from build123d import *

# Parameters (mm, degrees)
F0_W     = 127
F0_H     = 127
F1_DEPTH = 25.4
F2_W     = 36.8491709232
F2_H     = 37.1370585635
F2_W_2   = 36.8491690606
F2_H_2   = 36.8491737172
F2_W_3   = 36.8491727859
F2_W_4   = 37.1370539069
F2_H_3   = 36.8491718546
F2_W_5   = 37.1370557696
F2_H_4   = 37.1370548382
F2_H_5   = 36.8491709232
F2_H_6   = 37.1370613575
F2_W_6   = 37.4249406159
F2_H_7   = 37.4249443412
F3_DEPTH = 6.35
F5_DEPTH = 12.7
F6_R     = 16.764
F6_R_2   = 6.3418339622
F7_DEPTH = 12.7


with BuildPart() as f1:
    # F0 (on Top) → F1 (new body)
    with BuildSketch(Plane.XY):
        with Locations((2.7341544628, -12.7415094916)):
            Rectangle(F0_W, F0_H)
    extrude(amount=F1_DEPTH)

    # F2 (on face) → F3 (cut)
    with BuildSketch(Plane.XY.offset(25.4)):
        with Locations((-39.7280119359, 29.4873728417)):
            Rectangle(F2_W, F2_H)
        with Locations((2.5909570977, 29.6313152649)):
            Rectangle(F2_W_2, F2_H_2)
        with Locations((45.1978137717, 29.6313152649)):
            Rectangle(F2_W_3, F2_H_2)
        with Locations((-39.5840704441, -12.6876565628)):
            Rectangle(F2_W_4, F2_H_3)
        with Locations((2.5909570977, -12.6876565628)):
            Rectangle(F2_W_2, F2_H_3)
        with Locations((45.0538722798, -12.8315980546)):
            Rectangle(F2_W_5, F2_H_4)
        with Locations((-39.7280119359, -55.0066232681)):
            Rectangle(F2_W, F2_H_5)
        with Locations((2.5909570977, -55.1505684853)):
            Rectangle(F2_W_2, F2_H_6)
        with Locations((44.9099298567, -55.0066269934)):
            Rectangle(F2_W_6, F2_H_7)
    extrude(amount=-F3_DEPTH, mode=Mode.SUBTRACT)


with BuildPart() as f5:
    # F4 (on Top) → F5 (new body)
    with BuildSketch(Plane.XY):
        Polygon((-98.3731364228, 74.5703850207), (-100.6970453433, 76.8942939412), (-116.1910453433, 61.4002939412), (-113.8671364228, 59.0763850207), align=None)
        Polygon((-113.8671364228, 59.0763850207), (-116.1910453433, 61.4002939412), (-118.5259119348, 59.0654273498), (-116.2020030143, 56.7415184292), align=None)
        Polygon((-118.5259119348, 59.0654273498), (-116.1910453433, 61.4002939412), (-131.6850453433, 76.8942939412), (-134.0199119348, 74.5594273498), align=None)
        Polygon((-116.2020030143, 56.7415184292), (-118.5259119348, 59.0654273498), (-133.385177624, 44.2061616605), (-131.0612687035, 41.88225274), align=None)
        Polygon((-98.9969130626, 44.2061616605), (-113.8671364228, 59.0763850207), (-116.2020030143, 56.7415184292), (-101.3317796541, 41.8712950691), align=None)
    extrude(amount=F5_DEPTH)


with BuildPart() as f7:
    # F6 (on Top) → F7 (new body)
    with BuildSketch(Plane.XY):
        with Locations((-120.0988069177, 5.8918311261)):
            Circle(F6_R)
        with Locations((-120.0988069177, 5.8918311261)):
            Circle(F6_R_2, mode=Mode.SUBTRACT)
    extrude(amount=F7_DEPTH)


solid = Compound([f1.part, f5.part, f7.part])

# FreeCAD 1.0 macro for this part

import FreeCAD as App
import Part
import Sketcher
Q = App.Units.Quantity

doc = App.newDocument("Part")
body = doc.addObject("PartDesign::Body", "Body")

# Sketch on XY plane
sketch1 = body.newObject("Sketcher::SketchObject", "Sketch")
sketch1.AttachmentSupport = (doc.getObject("XY_Plane"), [""])
sketch1.MapMode = "FlatFace"
sketch1.addGeometry([
    Part.LineSegment(App.Vector(-60.765846, 50.758491, 0), App.Vector(-60.765846, -76.241509, 0)),
    Part.LineSegment(App.Vector(-60.765846, -76.241509, 0), App.Vector(66.234154, -76.241509, 0)),
    Part.LineSegment(App.Vector(66.234154, -76.241509, 0), App.Vector(66.234154, 50.758491, 0)),
    Part.LineSegment(App.Vector(66.234154, 50.758491, 0), App.Vector(-60.765846, 50.758491, 0)),
], False)
sketch1.addConstraint([
    Sketcher.Constraint("Coincident", 0, 2, 1, 1),
    Sketcher.Constraint("Coincident", 1, 2, 2, 1),
    Sketcher.Constraint("Coincident", 2, 2, 3, 1),
    Sketcher.Constraint("Coincident", 3, 2, 0, 1),
    Sketcher.Constraint("Vertical", 0),
    Sketcher.Constraint("Horizontal", 1),
    Sketcher.Constraint("Vertical", 2),
    Sketcher.Constraint("Horizontal", 3),
    Sketcher.Constraint("Equal", 3, 0),
    Sketcher.Constraint("DistanceX", 1, 1, 1, 2, Q("5 in")),
    Sketcher.Constraint("DistanceY", 0, 2, -1, 1, Q("76.241509 mm")),
    Sketcher.Constraint("DistanceX", 0, 2, -1, 1, Q("60.765846 mm")),
])
pad1 = body.newObject("PartDesign::Pad", "Pad")
pad1.Profile = sketch1
pad1.Length = Q("1 in")

# Sketch on XY plane
sketch2 = body.newObject("Sketcher::SketchObject", "Sketch001")
sketch2.AttachmentSupport = (doc.getObject("XY_Plane"), [""])
sketch2.MapMode = "FlatFace"
sketch2.AttachmentOffset = App.Placement(App.Vector(0, 0, 1 * 25.4), App.Rotation())
sketch2.addGeometry([
    Part.LineSegment(App.Vector(-58.152597, 48.055902, 0), App.Vector(-58.152597, 10.918844, 0)),  # 0
    Part.LineSegment(App.Vector(-58.152597, 10.918844, 0), App.Vector(-21.303426, 10.918844, 0)),  # 1
    Part.LineSegment(App.Vector(-21.303426, 10.918844, 0), App.Vector(-21.303426, 48.055902, 0)),  # 2
    Part.LineSegment(App.Vector(-21.303426, 48.055902, 0), App.Vector(-58.152597, 48.055902, 0)),  # 3
    Part.LineSegment(App.Vector(-15.833627, 48.055902, 0), App.Vector(-15.833627, 11.206728, 0)),  # 4
    Part.LineSegment(App.Vector(-15.833627, 11.206728, 0), App.Vector(21.015542, 11.206728, 0)),  # 5
    Part.LineSegment(App.Vector(21.015542, 11.206728, 0), App.Vector(21.015542, 48.055902, 0)),  # 6
    Part.LineSegment(App.Vector(21.015542, 48.055902, 0), App.Vector(-15.833627, 48.055902, 0)),  # 7
    Part.LineSegment(App.Vector(26.773227, 48.055902, 0), App.Vector(26.773227, 11.206728, 0)),  # 8
    Part.LineSegment(App.Vector(26.773227, 11.206728, 0), App.Vector(63.6224, 11.206728, 0)),  # 9
    Part.LineSegment(App.Vector(63.6224, 11.206728, 0), App.Vector(63.6224, 48.055902, 0)),  # 10
    Part.LineSegment(App.Vector(63.6224, 48.055902, 0), App.Vector(26.773227, 48.055902, 0)),  # 11
    Part.LineSegment(App.Vector(-58.152597, 5.736929, 0), App.Vector(-58.152597, -31.112242, 0)),  # 12
    Part.LineSegment(App.Vector(-58.152597, -31.112242, 0), App.Vector(-21.015543, -31.112242, 0)),  # 13
    Part.LineSegment(App.Vector(-21.015543, -31.112242, 0), App.Vector(-21.015543, 5.736929, 0)),  # 14
    Part.LineSegment(App.Vector(-21.015543, 5.736929, 0), App.Vector(-58.152597, 5.736929, 0)),  # 15
    Part.LineSegment(App.Vector(-15.833627, 5.736929, 0), App.Vector(-15.833627, -31.112242, 0)),  # 16
    Part.LineSegment(App.Vector(-15.833627, -31.112242, 0), App.Vector(21.015542, -31.112242, 0)),  # 17
    Part.LineSegment(App.Vector(21.015542, -31.112242, 0), App.Vector(21.015542, 5.736929, 0)),  # 18
    Part.LineSegment(App.Vector(21.015542, 5.736929, 0), App.Vector(-15.833627, 5.736929, 0)),  # 19
    Part.LineSegment(App.Vector(26.485344, 5.736929, 0), App.Vector(26.485344, -31.400125, 0)),  # 20
    Part.LineSegment(App.Vector(26.485344, -31.400125, 0), App.Vector(63.6224, -31.400125, 0)),  # 21
    Part.LineSegment(App.Vector(63.6224, -31.400125, 0), App.Vector(63.6224, 5.736929, 0)),  # 22
    Part.LineSegment(App.Vector(63.6224, 5.736929, 0), App.Vector(26.485344, 5.736929, 0)),  # 23
    Part.LineSegment(App.Vector(-58.152597, -36.582038, 0), App.Vector(-58.152597, -73.431209, 0)),  # 24
    Part.LineSegment(App.Vector(-58.152597, -73.431209, 0), App.Vector(-21.303426, -73.431209, 0)),  # 25
    Part.LineSegment(App.Vector(-21.303426, -73.431209, 0), App.Vector(-21.303426, -36.582038, 0)),  # 26
    Part.LineSegment(App.Vector(-21.303426, -36.582038, 0), App.Vector(-58.152597, -36.582038, 0)),  # 27
    Part.LineSegment(App.Vector(-15.833627, -36.582038, 0), App.Vector(-15.833627, -73.719099, 0)),  # 28
    Part.LineSegment(App.Vector(-15.833627, -73.719099, 0), App.Vector(21.015542, -73.719099, 0)),  # 29
    Part.LineSegment(App.Vector(21.015542, -73.719099, 0), App.Vector(21.015542, -36.582038, 0)),  # 30
    Part.LineSegment(App.Vector(21.015542, -36.582038, 0), App.Vector(-15.833627, -36.582038, 0)),  # 31
    Part.LineSegment(App.Vector(26.19746, -36.294155, 0), App.Vector(26.19746, -73.719099, 0)),  # 32
    Part.LineSegment(App.Vector(26.19746, -73.719099, 0), App.Vector(63.6224, -73.719099, 0)),  # 33
    Part.LineSegment(App.Vector(63.6224, -73.719099, 0), App.Vector(63.6224, -36.294155, 0)),  # 34
    Part.LineSegment(App.Vector(63.6224, -36.294155, 0), App.Vector(26.19746, -36.294155, 0)),  # 35
], False)
sketch2.addConstraint([
    Sketcher.Constraint("Coincident", 0, 2, 1, 1),
    Sketcher.Constraint("Coincident", 1, 2, 2, 1),
    Sketcher.Constraint("Coincident", 2, 2, 3, 1),
    Sketcher.Constraint("Coincident", 3, 2, 0, 1),
    Sketcher.Constraint("Coincident", 4, 2, 5, 1),
    Sketcher.Constraint("Coincident", 5, 2, 6, 1),
    Sketcher.Constraint("Coincident", 6, 2, 7, 1),
    Sketcher.Constraint("Coincident", 7, 2, 4, 1),
    Sketcher.Constraint("Coincident", 8, 2, 9, 1),
    Sketcher.Constraint("Coincident", 9, 2, 10, 1),
    Sketcher.Constraint("Coincident", 10, 2, 11, 1),
    Sketcher.Constraint("Coincident", 11, 2, 8, 1),
    Sketcher.Constraint("Coincident", 12, 2, 13, 1),
    Sketcher.Constraint("Coincident", 13, 2, 14, 1),
    Sketcher.Constraint("Coincident", 14, 2, 15, 1),
    Sketcher.Constraint("Coincident", 15, 2, 12, 1),
    Sketcher.Constraint("Coincident", 16, 2, 17, 1),
    Sketcher.Constraint("Coincident", 17, 2, 18, 1),
    Sketcher.Constraint("Coincident", 18, 2, 19, 1),
    Sketcher.Constraint("Coincident", 19, 2, 16, 1),
    Sketcher.Constraint("Coincident", 20, 2, 21, 1),
    Sketcher.Constraint("Coincident", 21, 2, 22, 1),
    Sketcher.Constraint("Coincident", 22, 2, 23, 1),
    Sketcher.Constraint("Coincident", 23, 2, 20, 1),
    Sketcher.Constraint("Coincident", 24, 2, 25, 1),
    Sketcher.Constraint("Coincident", 25, 2, 26, 1),
    Sketcher.Constraint("Coincident", 26, 2, 27, 1),
    Sketcher.Constraint("Coincident", 27, 2, 24, 1),
    Sketcher.Constraint("Coincident", 28, 2, 29, 1),
    Sketcher.Constraint("Coincident", 29, 2, 30, 1),
    Sketcher.Constraint("Coincident", 30, 2, 31, 1),
    Sketcher.Constraint("Coincident", 31, 2, 28, 1),
    Sketcher.Constraint("Coincident", 32, 2, 33, 1),
    Sketcher.Constraint("Coincident", 33, 2, 34, 1),
    Sketcher.Constraint("Coincident", 34, 2, 35, 1),
    Sketcher.Constraint("Coincident", 35, 2, 32, 1),
    Sketcher.Constraint("Vertical", 0),
    Sketcher.Constraint("Horizontal", 1),
    Sketcher.Constraint("Vertical", 2),
    Sketcher.Constraint("Horizontal", 3),
    Sketcher.Constraint("Vertical", 4),
    Sketcher.Constraint("Horizontal", 5),
    Sketcher.Constraint("Vertical", 6),
    Sketcher.Constraint("Horizontal", 7),
    Sketcher.Constraint("Vertical", 8),
    Sketcher.Constraint("Horizontal", 9),
    Sketcher.Constraint("Vertical", 10),
    Sketcher.Constraint("Horizontal", 11),
    Sketcher.Constraint("Vertical", 12),
    Sketcher.Constraint("Horizontal", 13),
    Sketcher.Constraint("Vertical", 14),
    Sketcher.Constraint("Horizontal", 15),
    Sketcher.Constraint("Vertical", 16),
    Sketcher.Constraint("Horizontal", 17),
    Sketcher.Constraint("Vertical", 18),
    Sketcher.Constraint("Horizontal", 19),
    Sketcher.Constraint("Vertical", 20),
    Sketcher.Constraint("Horizontal", 21),
    Sketcher.Constraint("Vertical", 22),
    Sketcher.Constraint("Horizontal", 23),
    Sketcher.Constraint("Vertical", 24),
    Sketcher.Constraint("Horizontal", 25),
    Sketcher.Constraint("Vertical", 26),
    Sketcher.Constraint("Horizontal", 27),
    Sketcher.Constraint("Vertical", 28),
    Sketcher.Constraint("Horizontal", 29),
    Sketcher.Constraint("Vertical", 30),
    Sketcher.Constraint("Horizontal", 31),
    Sketcher.Constraint("Vertical", 32),
    Sketcher.Constraint("Horizontal", 33),
    Sketcher.Constraint("Vertical", 34),
    Sketcher.Constraint("Horizontal", 35),
    Sketcher.Constraint("Symmetric", 13, 2, 17, 2, -2),
    Sketcher.Constraint("Horizontal", 3, 2, 6, 2),
    Sketcher.Constraint("Horizontal", 5, 2, 8, 2),
    Sketcher.Constraint("Horizontal", 7, 2, 10, 2),
    Sketcher.Constraint("Horizontal", 15, 2, 18, 2),
    Sketcher.Constraint("Horizontal", 19, 2, 22, 2),
    Sketcher.Constraint("Horizontal", 27, 2, 30, 2),
    Sketcher.Constraint("Horizontal", 29, 2, 32, 2),
    Sketcher.Constraint("Vertical", 3, 2, 12, 2),
    Sketcher.Constraint("Vertical", 7, 2, 16, 2),
    Sketcher.Constraint("Vertical", 6, 2, 17, 2),
    Sketcher.Constraint("Vertical", 10, 2, 21, 2),
    Sketcher.Constraint("Vertical", 15, 2, 24, 2),
    Sketcher.Constraint("Vertical", 2, 2, 25, 2),
    Sketcher.Constraint("Vertical", 19, 2, 28, 2),
    Sketcher.Constraint("Vertical", 18, 2, 29, 2),
    Sketcher.Constraint("Vertical", 22, 2, 33, 2),
    Sketcher.Constraint("Equal", 3, 5),
    Sketcher.Constraint("Equal", 3, 9),
    Sketcher.Constraint("Equal", 15, 21),
    Sketcher.Constraint("Equal", 11, 4),
    Sketcher.Constraint("Equal", 10, 12),
    Sketcher.Constraint("Equal", 23, 20),
    Sketcher.Constraint("Equal", 18, 24),
    Sketcher.Constraint("DistanceX", 1, 1, 1, 2, Q("36.849171 mm")),
    Sketcher.Constraint("DistanceX", 33, 1, 33, 2, Q("37.424941 mm")),
    Sketcher.Constraint("DistanceY", 0, 2, 0, 1, Q("37.137059 mm")),
    Sketcher.Constraint("DistanceY", 28, 2, 28, 1, Q("37.137061 mm")),
    Sketcher.Constraint("DistanceX", -1, 1, 9, 2, Q("63.6224 mm")),
    Sketcher.Constraint("DistanceY", 28, 2, -1, 1, Q("73.719099 mm")),
    Sketcher.Constraint("DistanceX", 1, 2, 4, 2, Q("5.469799 mm")),
    Sketcher.Constraint("DistanceY", 14, 2, 4, 2, Q("5.469799 mm")),
    Sketcher.Constraint("DistanceX", 13, 1, 13, 2, Q("37.137054 mm")),
    Sketcher.Constraint("DistanceY", 32, 2, 32, 1, Q("37.424944 mm")),
    Sketcher.Constraint("DistanceY", -1, 1, 4, 2, Q("11.206728 mm")),
])
pocket1 = body.newObject("PartDesign::Pocket", "Pocket")
pocket1.Profile = sketch2
pocket1.Length = Q("0.25 in")
body2 = doc.addObject("PartDesign::Body", "Body001")

# Sketch on XY plane
sketch3 = body2.newObject("Sketcher::SketchObject", "Sketch002")
sketch3.AttachmentSupport = (doc.getObject("XY_Plane001"), [""])
sketch3.MapMode = "FlatFace"
sketch3.addGeometry([
    Part.LineSegment(App.Vector(-98.373136, 74.570385, 0), App.Vector(-100.697045, 76.894294, 0)),  # 0
    Part.LineSegment(App.Vector(-100.697045, 76.894294, 0), App.Vector(-116.191045, 61.400294, 0)),  # 1
    Part.LineSegment(App.Vector(-116.191045, 61.400294, 0), App.Vector(-131.685045, 76.894294, 0)),  # 2
    Part.LineSegment(App.Vector(-131.685045, 76.894294, 0), App.Vector(-134.019912, 74.559427, 0)),  # 3
    Part.LineSegment(App.Vector(-134.019912, 74.559427, 0), App.Vector(-118.525912, 59.065427, 0)),  # 4
    Part.LineSegment(App.Vector(-118.525912, 59.065427, 0), App.Vector(-133.385178, 44.206162, 0)),  # 5
    Part.LineSegment(App.Vector(-133.385178, 44.206162, 0), App.Vector(-131.061269, 41.882253, 0)),  # 6
    Part.LineSegment(App.Vector(-131.061269, 41.882253, 0), App.Vector(-116.202003, 56.741518, 0)),  # 7
    Part.LineSegment(App.Vector(-116.202003, 56.741518, 0), App.Vector(-101.33178, 41.871295, 0)),  # 8
    Part.LineSegment(App.Vector(-101.33178, 41.871295, 0), App.Vector(-98.996913, 44.206162, 0)),  # 9
    Part.LineSegment(App.Vector(-98.996913, 44.206162, 0), App.Vector(-113.867136, 59.076385, 0)),  # 10
    Part.LineSegment(App.Vector(-113.867136, 59.076385, 0), App.Vector(-98.373136, 74.570385, 0)),  # 11
], False)
sketch3.addConstraint([
    Sketcher.Constraint("Coincident", 0, 2, 1, 1),
    Sketcher.Constraint("Coincident", 1, 2, 2, 1),
    Sketcher.Constraint("Coincident", 2, 2, 3, 1),
    Sketcher.Constraint("Coincident", 3, 2, 4, 1),
    Sketcher.Constraint("Coincident", 4, 2, 5, 1),
    Sketcher.Constraint("Coincident", 5, 2, 6, 1),
    Sketcher.Constraint("Coincident", 6, 2, 7, 1),
    Sketcher.Constraint("Coincident", 7, 2, 8, 1),
    Sketcher.Constraint("Coincident", 8, 2, 9, 1),
    Sketcher.Constraint("Coincident", 9, 2, 10, 1),
    Sketcher.Constraint("Coincident", 10, 2, 11, 1),
    Sketcher.Constraint("Coincident", 11, 2, 0, 1),
    Sketcher.Constraint("Perpendicular", 0, 1),
    Sketcher.Constraint("Perpendicular", 1, 2),
    Sketcher.Constraint("Perpendicular", 2, 3),
    Sketcher.Constraint("Perpendicular", 3, 4),
    Sketcher.Constraint("Perpendicular", 4, 5),
    Sketcher.Constraint("Perpendicular", 5, 6),
    Sketcher.Constraint("Perpendicular", 6, 7),
    Sketcher.Constraint("Perpendicular", 7, 8),
    Sketcher.Constraint("Perpendicular", 8, 9),
    Sketcher.Constraint("Perpendicular", 9, 10),
    Sketcher.Constraint("Perpendicular", 10, 11),
    Sketcher.Constraint("Horizontal", 0, 2, 2, 2),
    Sketcher.Constraint("Horizontal", 5, 2, 9, 2),
    Sketcher.Constraint("Equal", 1, 2),
    Sketcher.Constraint("Equal", 2, 4),
    Sketcher.Constraint("Equal", 0, 6),
    Sketcher.Constraint("Equal", 5, 7),
    Sketcher.Constraint("Equal", 3, 9),
    Sketcher.Constraint("Distance", 3, Q("0.13 in")),
    Sketcher.Constraint("DistanceX", 1, 2, 0, 2, Q("0.61 in")),
    Sketcher.Constraint("DistanceY", -1, 1, 5, 2, Q("1.7404001 in")),
    Sketcher.Constraint("DistanceY", 8, 2, 1, 2, Q("19.528999 mm")),
    Sketcher.Constraint("Distance", 8, Q("21.029672 mm")),
    Sketcher.Constraint("DistanceX", 3, 2, -1, 1, Q("134.019912 mm")),
])
pad2 = body2.newObject("PartDesign::Pad", "Pad001")
pad2.Profile = sketch3
pad2.Length = Q("0.5 in")
body3 = doc.addObject("PartDesign::Body", "Body002")

# Sketch on XY plane
sketch4 = body3.newObject("Sketcher::SketchObject", "Sketch003")
sketch4.AttachmentSupport = (doc.getObject("XY_Plane002"), [""])
sketch4.MapMode = "FlatFace"
sketch4.addGeometry([
    Part.Circle(App.Vector(-120.098807, 5.891831, 0), App.Vector(0, 0, 1), 16.764),
    Part.Circle(App.Vector(-120.098807, 5.891831, 0), App.Vector(0, 0, 1), 6.341834),
], False)
sketch4.addConstraint([
    Sketcher.Constraint("Coincident", 1, 3, 0, 3),
    Sketcher.Constraint("Diameter", 0, Q("1.32 in")),
    Sketcher.Constraint("Diameter", 1, Q("12.683668 mm")),
    Sketcher.Constraint("DistanceY", -1, 1, 0, 3, Q("5.891831 mm")),
    Sketcher.Constraint("DistanceX", 0, 3, -1, 1, Q("120.098807 mm")),
])
pad3 = body3.newObject("PartDesign::Pad", "Pad002")
pad3.Profile = sketch4
pad3.Length = Q("0.5 in")

doc.recompute()
